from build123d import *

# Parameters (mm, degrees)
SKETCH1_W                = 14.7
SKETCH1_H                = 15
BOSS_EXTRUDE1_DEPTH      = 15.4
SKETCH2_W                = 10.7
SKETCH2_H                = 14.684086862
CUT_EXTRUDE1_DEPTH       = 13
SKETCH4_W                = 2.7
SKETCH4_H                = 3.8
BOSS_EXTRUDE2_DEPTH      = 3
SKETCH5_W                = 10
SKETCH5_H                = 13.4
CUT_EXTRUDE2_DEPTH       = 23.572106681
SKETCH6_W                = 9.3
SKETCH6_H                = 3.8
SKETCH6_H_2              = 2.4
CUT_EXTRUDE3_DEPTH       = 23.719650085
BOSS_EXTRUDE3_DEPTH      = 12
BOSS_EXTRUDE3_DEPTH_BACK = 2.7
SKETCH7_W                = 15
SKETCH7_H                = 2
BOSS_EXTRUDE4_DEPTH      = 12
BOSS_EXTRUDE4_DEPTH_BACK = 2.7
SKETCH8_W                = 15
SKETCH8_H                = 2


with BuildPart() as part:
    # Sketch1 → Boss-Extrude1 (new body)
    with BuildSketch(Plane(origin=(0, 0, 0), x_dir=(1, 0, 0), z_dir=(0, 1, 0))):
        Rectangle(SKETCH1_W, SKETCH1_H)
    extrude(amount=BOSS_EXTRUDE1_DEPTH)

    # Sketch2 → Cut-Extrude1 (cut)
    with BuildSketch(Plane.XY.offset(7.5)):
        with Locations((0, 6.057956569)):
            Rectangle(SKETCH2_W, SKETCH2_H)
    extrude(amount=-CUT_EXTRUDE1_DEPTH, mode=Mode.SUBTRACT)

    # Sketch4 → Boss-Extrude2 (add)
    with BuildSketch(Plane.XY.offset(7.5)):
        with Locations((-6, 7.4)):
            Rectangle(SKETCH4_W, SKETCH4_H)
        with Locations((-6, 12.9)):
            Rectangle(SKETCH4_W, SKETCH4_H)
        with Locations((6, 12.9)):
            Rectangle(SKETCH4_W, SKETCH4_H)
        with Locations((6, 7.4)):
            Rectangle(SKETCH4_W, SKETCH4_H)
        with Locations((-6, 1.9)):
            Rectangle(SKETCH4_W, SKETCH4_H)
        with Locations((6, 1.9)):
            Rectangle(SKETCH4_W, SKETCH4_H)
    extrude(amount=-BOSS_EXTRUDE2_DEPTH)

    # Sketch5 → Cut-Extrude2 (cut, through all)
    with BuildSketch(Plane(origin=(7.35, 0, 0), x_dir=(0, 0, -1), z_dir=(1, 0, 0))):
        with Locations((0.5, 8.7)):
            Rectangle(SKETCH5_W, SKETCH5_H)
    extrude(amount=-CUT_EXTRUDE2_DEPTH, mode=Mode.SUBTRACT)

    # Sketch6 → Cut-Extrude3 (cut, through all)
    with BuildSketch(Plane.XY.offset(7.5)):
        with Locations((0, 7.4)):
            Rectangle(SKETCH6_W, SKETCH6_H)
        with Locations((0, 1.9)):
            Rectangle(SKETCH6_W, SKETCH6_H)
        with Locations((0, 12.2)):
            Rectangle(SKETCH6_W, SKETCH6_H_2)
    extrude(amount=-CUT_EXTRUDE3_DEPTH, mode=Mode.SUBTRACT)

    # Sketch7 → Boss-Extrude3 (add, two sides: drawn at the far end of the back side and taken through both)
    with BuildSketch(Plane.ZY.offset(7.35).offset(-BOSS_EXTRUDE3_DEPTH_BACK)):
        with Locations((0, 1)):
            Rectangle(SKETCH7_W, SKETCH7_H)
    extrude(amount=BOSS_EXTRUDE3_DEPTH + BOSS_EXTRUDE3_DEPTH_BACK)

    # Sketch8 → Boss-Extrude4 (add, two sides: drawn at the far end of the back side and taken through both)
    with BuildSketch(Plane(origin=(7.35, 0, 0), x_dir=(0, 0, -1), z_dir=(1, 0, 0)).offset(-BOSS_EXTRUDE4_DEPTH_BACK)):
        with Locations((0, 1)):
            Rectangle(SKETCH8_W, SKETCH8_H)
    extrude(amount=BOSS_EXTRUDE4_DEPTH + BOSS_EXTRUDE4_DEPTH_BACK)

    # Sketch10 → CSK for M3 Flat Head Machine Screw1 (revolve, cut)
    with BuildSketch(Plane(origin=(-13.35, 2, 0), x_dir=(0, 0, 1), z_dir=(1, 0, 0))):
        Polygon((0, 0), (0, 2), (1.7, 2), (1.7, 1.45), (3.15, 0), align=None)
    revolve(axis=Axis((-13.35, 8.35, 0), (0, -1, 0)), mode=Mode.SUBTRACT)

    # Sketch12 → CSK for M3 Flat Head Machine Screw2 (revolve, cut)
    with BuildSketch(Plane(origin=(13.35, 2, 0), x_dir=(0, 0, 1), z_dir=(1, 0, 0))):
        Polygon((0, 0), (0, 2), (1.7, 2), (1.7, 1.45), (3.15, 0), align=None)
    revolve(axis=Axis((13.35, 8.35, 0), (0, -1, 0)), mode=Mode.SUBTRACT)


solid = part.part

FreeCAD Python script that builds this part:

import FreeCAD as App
import Part
import Sketcher
from FreeCAD import Vector
Q = App.Units.Quantity

doc = App.newDocument("Part")
body = doc.addObject("PartDesign::Body", "Body")

sketch1 = doc.addObject("Sketcher::SketchObject", "Sketch")
body.addObject(sketch1)
sketch1.AttachmentSupport = (doc.XZ_Plane, [""])
sketch1.MapMode = "FlatFace"
sketch1.addGeometry([
    Part.LineSegment(Vector(-7.35, -7.5, 0), Vector(-7.35, 7.5, 0)),
    Part.LineSegment(Vector(-7.35, 7.5, 0), Vector(7.35, 7.5, 0)),
    Part.LineSegment(Vector(7.35, 7.5, 0), Vector(7.35, -7.5, 0)),
    Part.LineSegment(Vector(7.35, -7.5, 0), Vector(-7.35, -7.5, 0)),
], False)
sketch1.addConstraint([
    Sketcher.Constraint("Coincident", 0, 2, 1, 1),
    Sketcher.Constraint("Coincident", 1, 2, 2, 1),
    Sketcher.Constraint("Coincident", 2, 2, 3, 1),
    Sketcher.Constraint("Coincident", 3, 2, 0, 1),
    Sketcher.Constraint("Vertical", 0),
    Sketcher.Constraint("Horizontal", 1),
    Sketcher.Constraint("Vertical", 2),
    Sketcher.Constraint("Horizontal", 3),
    Sketcher.Constraint("Symmetric", 0, 2, 2, 2, -1, 1),
    Sketcher.Constraint("DistanceY", 0, 1, 0, 2, 15.0),
    Sketcher.Constraint("DistanceX", 1, 1, 1, 2, 14.7),
])
pad1 = doc.addObject("PartDesign::Pad", "Pad")
body.addObject(pad1)
pad1.Profile = sketch1
pad1.Length = 15.4
pad1.Reversed = True

sketch2 = doc.addObject("Sketcher::SketchObject", "Sketch001")
body.addObject(sketch2)
sketch2.AttachmentSupport = (doc.XY_Plane, [""])
sketch2.MapMode = "FlatFace"
sketch2.AttachmentOffset = App.Placement(Vector(0, 0, 7.5), App.Rotation())
sketch2.addGeometry([
    Part.LineSegment(Vector(-5.35, 13.4, 0), Vector(-5.35, -1.284087, 0)),
    Part.LineSegment(Vector(-5.35, -1.284087, 0), Vector(5.35, -1.284087, 0)),
    Part.LineSegment(Vector(5.35, -1.284087, 0), Vector(5.35, 13.4, 0)),
    Part.LineSegment(Vector(5.35, 13.4, 0), Vector(-5.35, 13.4, 0)),
], False)
sketch2.addConstraint([
    Sketcher.Constraint("Coincident", 0, 2, 1, 1),
    Sketcher.Constraint("Coincident", 1, 2, 2, 1),
    Sketcher.Constraint("Coincident", 2, 2, 3, 1),
    Sketcher.Constraint("Coincident", 3, 2, 0, 1),
    Sketcher.Constraint("Vertical", 0),
    Sketcher.Constraint("Horizontal", 1),
    Sketcher.Constraint("Vertical", 2),
    Sketcher.Constraint("Horizontal", 3),
    Sketcher.Constraint("DistanceX", 1, 1, 1, 2, 10.7),
    Sketcher.Constraint("DistanceY", -1, 1, 2, 2, 13.4),
    Sketcher.Constraint("DistanceX", 0, 2, -1, 1, 5.35),
    Sketcher.Constraint("DistanceY", 0, 2, 0, 1, 14.684087),
])
pocket1 = doc.addObject("PartDesign::Pocket", "Pocket")
body.addObject(pocket1)
pocket1.Profile = sketch2
pocket1.Length = 13

sketch3 = doc.addObject("Sketcher::SketchObject", "Sketch002")
body.addObject(sketch3)
sketch3.AttachmentSupport = (doc.XY_Plane, [""])
sketch3.MapMode = "FlatFace"
sketch3.AttachmentOffset = App.Placement(Vector(0, 0, 7.5), App.Rotation())
sketch3.addGeometry([
    Part.LineSegment(Vector(-7.35, 9.3, 0), Vector(-7.35, 5.5, 0)),
    Part.LineSegment(Vector(-7.35, 5.5, 0), Vector(-4.65, 5.5, 0)),
    Part.LineSegment(Vector(-4.65, 5.5, 0), Vector(-4.65, 9.3, 0)),
    Part.LineSegment(Vector(-4.65, 9.3, 0), Vector(-7.35, 9.3, 0)),
    Part.LineSegment(Vector(-7.35, 14.8, 0), Vector(-7.35, 11, 0)),
    Part.LineSegment(Vector(-7.35, 11, 0), Vector(-4.65, 11, 0)),
    Part.LineSegment(Vector(-4.65, 11, 0), Vector(-4.65, 14.8, 0)),
    Part.LineSegment(Vector(-4.65, 14.8, 0), Vector(-7.35, 14.8, 0)),
    Part.LineSegment(Vector(4.65, 14.8, 0), Vector(4.65, 11, 0)),
    Part.LineSegment(Vector(4.65, 11, 0), Vector(7.35, 11, 0)),
    Part.LineSegment(Vector(7.35, 11, 0), Vector(7.35, 14.8, 0)),
    Part.LineSegment(Vector(7.35, 14.8, 0), Vector(4.65, 14.8, 0)),
    Part.LineSegment(Vector(4.65, 9.3, 0), Vector(4.65, 5.5, 0)),
    Part.LineSegment(Vector(4.65, 5.5, 0), Vector(7.35, 5.5, 0)),
    Part.LineSegment(Vector(7.35, 5.5, 0), Vector(7.35, 9.3, 0)),
    Part.LineSegment(Vector(7.35, 9.3, 0), Vector(4.65, 9.3, 0)),
    Part.LineSegment(Vector(-7.35, 3.8, 0), Vector(-7.35, 0, 0)),
    Part.LineSegment(Vector(-7.35, 0, 0), Vector(-4.65, 0, 0)),
    Part.LineSegment(Vector(-4.65, 0, 0), Vector(-4.65, 3.8, 0)),
    Part.LineSegment(Vector(-4.65, 3.8, 0), Vector(-7.35, 3.8, 0)),
    Part.LineSegment(Vector(4.65, 3.8, 0), Vector(4.65, 0, 0)),
    Part.LineSegment(Vector(4.65, 0, 0), Vector(7.35, 0, 0)),
    Part.LineSegment(Vector(7.35, 0, 0), Vector(7.35, 3.8, 0)),
    Part.LineSegment(Vector(7.35, 3.8, 0), Vector(4.65, 3.8, 0)),
], False)
sketch3.addConstraint([
    Sketcher.Constraint("Coincident", 0, 2, 1, 1),
    Sketcher.Constraint("Coincident", 1, 2, 2, 1),
    Sketcher.Constraint("Coincident", 2, 2, 3, 1),
    Sketcher.Constraint("Coincident", 3, 2, 0, 1),
    Sketcher.Constraint("Coincident", 4, 2, 5, 1),
    Sketcher.Constraint("Coincident", 5, 2, 6, 1),
    Sketcher.Constraint("Coincident", 6, 2, 7, 1),
    Sketcher.Constraint("Coincident", 7, 2, 4, 1),
    Sketcher.Constraint("Coincident", 8, 2, 9, 1),
    Sketcher.Constraint("Coincident", 9, 2, 10, 1),
    Sketcher.Constraint("Coincident", 10, 2, 11, 1),
    Sketcher.Constraint("Coincident", 11, 2, 8, 1),
    Sketcher.Constraint("Coincident", 12, 2, 13, 1),
    Sketcher.Constraint("Coincident", 13, 2, 14, 1),
    Sketcher.Constraint("Coincident", 14, 2, 15, 1),
    Sketcher.Constraint("Coincident", 15, 2, 12, 1),
    Sketcher.Constraint("Coincident", 16, 2, 17, 1),
    Sketcher.Constraint("Coincident", 17, 2, 18, 1),
    Sketcher.Constraint("Coincident", 18, 2, 19, 1),
    Sketcher.Constraint("Coincident", 19, 2, 16, 1),
    Sketcher.Constraint("Coincident", 20, 2, 21, 1),
    Sketcher.Constraint("Coincident", 21, 2, 22, 1),
    Sketcher.Constraint("Coincident", 22, 2, 23, 1),
    Sketcher.Constraint("Coincident", 23, 2, 20, 1),
    Sketcher.Constraint("Vertical", 0),
    Sketcher.Constraint("Horizontal", 1),
    Sketcher.Constraint("Vertical", 2),
    Sketcher.Constraint("Horizontal", 3),
    Sketcher.Constraint("Vertical", 4),
    Sketcher.Constraint("Horizontal", 5),
    Sketcher.Constraint("Vertical", 6),
    Sketcher.Constraint("Horizontal", 7),
    Sketcher.Constraint("Vertical", 8),
    Sketcher.Constraint("Horizontal", 9),
    Sketcher.Constraint("Vertical", 10),
    Sketcher.Constraint("Horizontal", 11),
    Sketcher.Constraint("Vertical", 12),
    Sketcher.Constraint("Horizontal", 13),
    Sketcher.Constraint("Vertical", 14),
    Sketcher.Constraint("Horizontal", 15),
    Sketcher.Constraint("Vertical", 16),
    Sketcher.Constraint("Horizontal", 17),
    Sketcher.Constraint("Vertical", 18),
    Sketcher.Constraint("Horizontal", 19),
    Sketcher.Constraint("Vertical", 20),
    Sketcher.Constraint("Horizontal", 21),
    Sketcher.Constraint("Vertical", 22),
    Sketcher.Constraint("Horizontal", 23),
    Sketcher.Constraint("Symmetric", 17, 2, 20, 2, -1, 1),
    Sketcher.Constraint("Symmetric", 5, 2, 8, 2, -2),
    Sketcher.Constraint("Symmetric", 7, 2, 10, 2, -2),
    Sketcher.Constraint("Symmetric", 1, 2, 12, 2, -2),
    Sketcher.Constraint("Symmetric", 3, 2, 14, 2, -2),
    Sketcher.Constraint("Symmetric", 16, 2, 21, 2, -2),
    Sketcher.Constraint("Horizontal", 19, 2, 22, 2),
    Sketcher.Constraint("Vertical", 3, 2, 4, 2),
    Sketcher.Constraint("Vertical", 2, 2, 5, 2),
    Sketcher.Constraint("Vertical", 7, 2, 16, 2),
    Sketcher.Constraint("Vertical", 6, 2, 17, 2),
    Sketcher.Constraint("Equal", 2, 4),
    Sketcher.Constraint("Equal", 14, 16),
    Sketcher.Constraint("DistanceX", 1, 1, 1, 2, 2.7),
    Sketcher.Constraint("DistanceY", 0, 2, 0, 1, 3.8),
    Sketcher.Constraint("DistanceY", -1, 1, 4, 2, 11.0),
    Sketcher.Constraint("DistanceX", 4, 2, 8, 2, 12.0),
    Sketcher.Constraint("DistanceY", -1, 1, 0, 2, 5.5),
])
pad2 = doc.addObject("PartDesign::Pad", "Pad001")
body.addObject(pad2)
pad2.Profile = sketch3
pad2.Length = 3
pad2.Reversed = True

sketch4 = doc.addObject("Sketcher::SketchObject", "Sketch003")
body.addObject(sketch4)
sketch4.AttachmentSupport = (doc.YZ_Plane, [""])
sketch4.MapMode = "FlatFace"
sketch4.AttachmentOffset = App.Placement(Vector(0, 0, 7.35), App.Rotation())
sketch4.addGeometry([
    Part.LineSegment(Vector(15.4, 4.5, 0), Vector(2, 4.5, 0)),
    Part.LineSegment(Vector(2, 4.5, 0), Vector(2, -5.5, 0)),
    Part.LineSegment(Vector(2, -5.5, 0), Vector(15.4, -5.5, 0)),
    Part.LineSegment(Vector(15.4, -5.5, 0), Vector(15.4, 4.5, 0)),
], False)
sketch4.addConstraint([
    Sketcher.Constraint("Coincident", 0, 2, 1, 1),
    Sketcher.Constraint("Coincident", 1, 2, 2, 1),
    Sketcher.Constraint("Coincident", 2, 2, 3, 1),
    Sketcher.Constraint("Coincident", 3, 2, 0, 1),
    Sketcher.Constraint("Horizontal", 0),
    Sketcher.Constraint("Vertical", 1),
    Sketcher.Constraint("Horizontal", 2),
    Sketcher.Constraint("Vertical", 3),
    Sketcher.Constraint("DistanceY", 1, 2, 1, 1, 10.0),
    Sketcher.Constraint("DistanceX", 0, 2, 0, 1, 13.4),
    Sketcher.Constraint("DistanceX", -1, 1, 0, 2, 2.0),
    Sketcher.Constraint("DistanceY", -1, 1, 0, 2, 4.5),
])
pocket2 = doc.addObject("PartDesign::Pocket", "Pocket001")
body.addObject(pocket2)
pocket2.Profile = sketch4
pocket2.Type = "ThroughAll"

sketch5 = doc.addObject("Sketcher::SketchObject", "Sketch004")
body.addObject(sketch5)
sketch5.AttachmentSupport = (doc.XY_Plane, [""])
sketch5.MapMode = "FlatFace"
sketch5.AttachmentOffset = App.Placement(Vector(0, 0, 7.5), App.Rotation())
sketch5.addGeometry([
    Part.LineSegment(Vector(-4.65, 9.3, 0), Vector(-4.65, 5.5, 0)),
    Part.LineSegment(Vector(-4.65, 5.5, 0), Vector(4.65, 5.5, 0)),
    Part.LineSegment(Vector(4.65, 5.5, 0), Vector(4.65, 9.3, 0)),
    Part.LineSegment(Vector(4.65, 9.3, 0), Vector(-4.65, 9.3, 0)),
    Part.LineSegment(Vector(-4.65, 3.8, 0), Vector(-4.65, 0, 0)),
    Part.LineSegment(Vector(-4.65, 0, 0), Vector(4.65, 0, 0)),
    Part.LineSegment(Vector(4.65, 0, 0), Vector(4.65, 3.8, 0)),
    Part.LineSegment(Vector(4.65, 3.8, 0), Vector(-4.65, 3.8, 0)),
    Part.LineSegment(Vector(-4.65, 13.4, 0), Vector(-4.65, 11, 0)),
    Part.LineSegment(Vector(-4.65, 11, 0), Vector(4.65, 11, 0)),
    Part.LineSegment(Vector(4.65, 11, 0), Vector(4.65, 13.4, 0)),
    Part.LineSegment(Vector(4.65, 13.4, 0), Vector(-4.65, 13.4, 0)),
], False)
sketch5.addConstraint([
    Sketcher.Constraint("Coincident", 0, 2, 1, 1),
    Sketcher.Constraint("Coincident", 1, 2, 2, 1),
    Sketcher.Constraint("Coincident", 2, 2, 3, 1),
    Sketcher.Constraint("Coincident", 3, 2, 0, 1),
    Sketcher.Constraint("Coincident", 4, 2, 5, 1),
    Sketcher.Constraint("Coincident", 5, 2, 6, 1),
    Sketcher.Constraint("Coincident", 6, 2, 7, 1),
    Sketcher.Constraint("Coincident", 7, 2, 4, 1),
    Sketcher.Constraint("Coincident", 8, 2, 9, 1),
    Sketcher.Constraint("Coincident", 9, 2, 10, 1),
    Sketcher.Constraint("Coincident", 10, 2, 11, 1),
    Sketcher.Constraint("Coincident", 11, 2, 8, 1),
    Sketcher.Constraint("Vertical", 0),
    Sketcher.Constraint("Horizontal", 1),
    Sketcher.Constraint("Vertical", 2),
    Sketcher.Constraint("Horizontal", 3),
    Sketcher.Constraint("Vertical", 4),
    Sketcher.Constraint("Horizontal", 5),
    Sketcher.Constraint("Vertical", 6),
    Sketcher.Constraint("Horizontal", 7),
    Sketcher.Constraint("Vertical", 8),
    Sketcher.Constraint("Horizontal", 9),
    Sketcher.Constraint("Vertical", 10),
    Sketcher.Constraint("Horizontal", 11),
    Sketcher.Constraint("Symmetric", 4, 2, 5, 2, -1, 1),
    Sketcher.Constraint("Vertical", 3, 2, 4, 2),
    Sketcher.Constraint("Vertical", 2, 2, 5, 2),
    Sketcher.Constraint("Vertical", 7, 2, 8, 2),
    Sketcher.Constraint("Vertical", 6, 2, 9, 2),
    Sketcher.Constraint("Equal", 2, 4),
    Sketcher.Constraint("DistanceX", 1, 1, 1, 2, 9.3),
    Sketcher.Constraint("DistanceY", 0, 2, 0, 1, 3.8),
    Sketcher.Constraint("DistanceY", 8, 2, 8, 1, 2.4),
    Sketcher.Constraint("DistanceY", -1, 1, 8, 2, 11.0),
    Sketcher.Constraint("DistanceY", -1, 1, 0, 2, 5.5),
])
pocket3 = doc.addObject("PartDesign::Pocket", "Pocket002")
body.addObject(pocket3)
pocket3.Profile = sketch5
pocket3.Type = "ThroughAll"

sketch6 = doc.addObject("Sketcher::SketchObject", "Sketch005")
body.addObject(sketch6)
sketch6.AttachmentSupport = (doc.YZ_Plane, [""])
sketch6.MapMode = "FlatFace"
sketch6.AttachmentOffset = App.Placement(Vector(0, 0, -7.35), App.Rotation())
sketch6.addGeometry([
    Part.LineSegment(Vector(2, -7.5, 0), Vector(0, -7.5, 0)),
    Part.LineSegment(Vector(0, -7.5, 0), Vector(0, 7.5, 0)),
    Part.LineSegment(Vector(0, 7.5, 0), Vector(2, 7.5, 0)),
    Part.LineSegment(Vector(2, 7.5, 0), Vector(2, -7.5, 0)),
], False)
sketch6.addConstraint([
    Sketcher.Constraint("Coincident", 0, 2, 1, 1),
    Sketcher.Constraint("Coincident", 1, 2, 2, 1),
    Sketcher.Constraint("Coincident", 2, 2, 3, 1),
    Sketcher.Constraint("Coincident", 3, 2, 0, 1),
    Sketcher.Constraint("Horizontal", 0),
    Sketcher.Constraint("Vertical", 1),
    Sketcher.Constraint("Horizontal", 2),
    Sketcher.Constraint("Vertical", 3),
    Sketcher.Constraint("Symmetric", 0, 2, 1, 2, -1, 1),
    Sketcher.Constraint("DistanceX", 0, 2, 0, 1, 2.0),
    Sketcher.Constraint("DistanceY", 1, 1, 1, 2, 15.0),
])
pad3 = doc.addObject("PartDesign::Pad", "Pad002")
body.addObject(pad3)
pad3.Profile = sketch6
pad3.Type = "TwoLengths"
pad3.Length = 12
pad3.Length2 = 2.7
pad3.Reversed = True

sketch7 = doc.addObject("Sketcher::SketchObject", "Sketch006")
body.addObject(sketch7)
sketch7.AttachmentSupport = (doc.YZ_Plane, [""])
sketch7.MapMode = "FlatFace"
sketch7.AttachmentOffset = App.Placement(Vector(0, 0, 7.35), App.Rotation())
sketch7.addGeometry([
    Part.LineSegment(Vector(2, 7.5, 0), Vector(0, 7.5, 0)),
    Part.LineSegment(Vector(0, 7.5, 0), Vector(0, -7.5, 0)),
    Part.LineSegment(Vector(0, -7.5, 0), Vector(2, -7.5, 0)),
    Part.LineSegment(Vector(2, -7.5, 0), Vector(2, 7.5, 0)),
], False)
sketch7.addConstraint([
    Sketcher.Constraint("Coincident", 0, 2, 1, 1),
    Sketcher.Constraint("Coincident", 1, 2, 2, 1),
    Sketcher.Constraint("Coincident", 2, 2, 3, 1),
    Sketcher.Constraint("Coincident", 3, 2, 0, 1),
    Sketcher.Constraint("Horizontal", 0),
    Sketcher.Constraint("Vertical", 1),
    Sketcher.Constraint("Horizontal", 2),
    Sketcher.Constraint("Vertical", 3),
    Sketcher.Constraint("Symmetric", 0, 2, 1, 2, -1, 1),
    Sketcher.Constraint("DistanceX", 0, 2, 0, 1, 2.0),
    Sketcher.Constraint("DistanceY", 1, 2, 1, 1, 15.0),
])
pad4 = doc.addObject("PartDesign::Pad", "Pad003")
body.addObject(pad4)
pad4.Profile = sketch7
pad4.Type = "TwoLengths"
pad4.Length = 12
pad4.Length2 = 2.7

sketch8 = doc.addObject("Sketcher::SketchObject", "Sketch007")
body.addObject(sketch8)
sketch8.AttachmentSupport = (doc.YZ_Plane, [""])
sketch8.MapMode = "FlatFace"
sketch8.AttachmentOffset = App.Placement(Vector(0, 0, -13.35), App.Rotation())
sketch8.addGeometry([
    Part.LineSegment(Vector(0, 0, 0), Vector(2, 0, 0)),
    Part.LineSegment(Vector(2, 0, 0), Vector(2, 3.15, 0)),
    Part.LineSegment(Vector(2, 3.15, 0), Vector(0.55, 1.7, 0)),
    Part.LineSegment(Vector(0.55, 1.7, 0), Vector(0, 1.7, 0)),
    Part.LineSegment(Vector(0, 1.7, 0), Vector(0, 0, 0)),
], False)
sketch8.addConstraint([
    Sketcher.Constraint("Coincident", 0, 2, 1, 1),
    Sketcher.Constraint("Coincident", 1, 2, 2, 1),
    Sketcher.Constraint("Coincident", 2, 2, 3, 1),
    Sketcher.Constraint("Coincident", 3, 2, 4, 1),
    Sketcher.Constraint("Coincident", 4, 2, 0, 1),
    Sketcher.Constraint("Horizontal", 0),
    Sketcher.Constraint("Vertical", 1),
    Sketcher.Constraint("Horizontal", 3),
    Sketcher.Constraint("Vertical", 4),
    Sketcher.Constraint("Coincident", 4, 2, -1, 1),
    Sketcher.Constraint("DistanceX", 0, 1, 0, 2, 2.0),
    Sketcher.Constraint("Angle", 2, Q("-135 deg")),
    Sketcher.Constraint("DistanceY", 4, 2, 4, 1, 1.7),
    Sketcher.Constraint("DistanceX", 3, 2, 3, 1, 0.55),
])
groove = doc.addObject("PartDesign::Groove", "Groove")
body.addObject(groove)
groove.Profile = sketch8
groove.ReferenceAxis = (sketch8, ["H_Axis"])
groove.Angle = 360

sketch9 = doc.addObject("Sketcher::SketchObject", "Sketch008")
body.addObject(sketch9)
sketch9.AttachmentSupport = (doc.YZ_Plane, [""])
sketch9.MapMode = "FlatFace"
sketch9.AttachmentOffset = App.Placement(Vector(0, 0, 13.35), App.Rotation())
sketch9.addGeometry([
    Part.LineSegment(Vector(0, 0, 0), Vector(2, 0, 0)),
    Part.LineSegment(Vector(2, 0, 0), Vector(2, 3.15, 0)),
    Part.LineSegment(Vector(2, 3.15, 0), Vector(0.55, 1.7, 0)),
    Part.LineSegment(Vector(0.55, 1.7, 0), Vector(0, 1.7, 0)),
    Part.LineSegment(Vector(0, 1.7, 0), Vector(0, 0, 0)),
], False)
sketch9.addConstraint([
    Sketcher.Constraint("Coincident", 0, 2, 1, 1),
    Sketcher.Constraint("Coincident", 1, 2, 2, 1),
    Sketcher.Constraint("Coincident", 2, 2, 3, 1),
    Sketcher.Constraint("Coincident", 3, 2, 4, 1),
    Sketcher.Constraint("Coincident", 4, 2, 0, 1),
    Sketcher.Constraint("Horizontal", 0),
    Sketcher.Constraint("Vertical", 1),
    Sketcher.Constraint("Horizontal", 3),
    Sketcher.Constraint("Vertical", 4),
    Sketcher.Constraint("Coincident", 4, 2, -1, 1),
    Sketcher.Constraint("DistanceX", 0, 1, 0, 2, 2.0),
    Sketcher.Constraint("Angle", 2, Q("-135 deg")),
    Sketcher.Constraint("DistanceY", 4, 2, 4, 1, 1.7),
    Sketcher.Constraint("DistanceX", 3, 2, 3, 1, 0.55),
])
groove2 = doc.addObject("PartDesign::Groove", "Groove001")
body.addObject(groove2)
groove2.Profile = sketch9
groove2.ReferenceAxis = (sketch9, ["H_Axis"])
groove2.Angle = 360

doc.recompute()
